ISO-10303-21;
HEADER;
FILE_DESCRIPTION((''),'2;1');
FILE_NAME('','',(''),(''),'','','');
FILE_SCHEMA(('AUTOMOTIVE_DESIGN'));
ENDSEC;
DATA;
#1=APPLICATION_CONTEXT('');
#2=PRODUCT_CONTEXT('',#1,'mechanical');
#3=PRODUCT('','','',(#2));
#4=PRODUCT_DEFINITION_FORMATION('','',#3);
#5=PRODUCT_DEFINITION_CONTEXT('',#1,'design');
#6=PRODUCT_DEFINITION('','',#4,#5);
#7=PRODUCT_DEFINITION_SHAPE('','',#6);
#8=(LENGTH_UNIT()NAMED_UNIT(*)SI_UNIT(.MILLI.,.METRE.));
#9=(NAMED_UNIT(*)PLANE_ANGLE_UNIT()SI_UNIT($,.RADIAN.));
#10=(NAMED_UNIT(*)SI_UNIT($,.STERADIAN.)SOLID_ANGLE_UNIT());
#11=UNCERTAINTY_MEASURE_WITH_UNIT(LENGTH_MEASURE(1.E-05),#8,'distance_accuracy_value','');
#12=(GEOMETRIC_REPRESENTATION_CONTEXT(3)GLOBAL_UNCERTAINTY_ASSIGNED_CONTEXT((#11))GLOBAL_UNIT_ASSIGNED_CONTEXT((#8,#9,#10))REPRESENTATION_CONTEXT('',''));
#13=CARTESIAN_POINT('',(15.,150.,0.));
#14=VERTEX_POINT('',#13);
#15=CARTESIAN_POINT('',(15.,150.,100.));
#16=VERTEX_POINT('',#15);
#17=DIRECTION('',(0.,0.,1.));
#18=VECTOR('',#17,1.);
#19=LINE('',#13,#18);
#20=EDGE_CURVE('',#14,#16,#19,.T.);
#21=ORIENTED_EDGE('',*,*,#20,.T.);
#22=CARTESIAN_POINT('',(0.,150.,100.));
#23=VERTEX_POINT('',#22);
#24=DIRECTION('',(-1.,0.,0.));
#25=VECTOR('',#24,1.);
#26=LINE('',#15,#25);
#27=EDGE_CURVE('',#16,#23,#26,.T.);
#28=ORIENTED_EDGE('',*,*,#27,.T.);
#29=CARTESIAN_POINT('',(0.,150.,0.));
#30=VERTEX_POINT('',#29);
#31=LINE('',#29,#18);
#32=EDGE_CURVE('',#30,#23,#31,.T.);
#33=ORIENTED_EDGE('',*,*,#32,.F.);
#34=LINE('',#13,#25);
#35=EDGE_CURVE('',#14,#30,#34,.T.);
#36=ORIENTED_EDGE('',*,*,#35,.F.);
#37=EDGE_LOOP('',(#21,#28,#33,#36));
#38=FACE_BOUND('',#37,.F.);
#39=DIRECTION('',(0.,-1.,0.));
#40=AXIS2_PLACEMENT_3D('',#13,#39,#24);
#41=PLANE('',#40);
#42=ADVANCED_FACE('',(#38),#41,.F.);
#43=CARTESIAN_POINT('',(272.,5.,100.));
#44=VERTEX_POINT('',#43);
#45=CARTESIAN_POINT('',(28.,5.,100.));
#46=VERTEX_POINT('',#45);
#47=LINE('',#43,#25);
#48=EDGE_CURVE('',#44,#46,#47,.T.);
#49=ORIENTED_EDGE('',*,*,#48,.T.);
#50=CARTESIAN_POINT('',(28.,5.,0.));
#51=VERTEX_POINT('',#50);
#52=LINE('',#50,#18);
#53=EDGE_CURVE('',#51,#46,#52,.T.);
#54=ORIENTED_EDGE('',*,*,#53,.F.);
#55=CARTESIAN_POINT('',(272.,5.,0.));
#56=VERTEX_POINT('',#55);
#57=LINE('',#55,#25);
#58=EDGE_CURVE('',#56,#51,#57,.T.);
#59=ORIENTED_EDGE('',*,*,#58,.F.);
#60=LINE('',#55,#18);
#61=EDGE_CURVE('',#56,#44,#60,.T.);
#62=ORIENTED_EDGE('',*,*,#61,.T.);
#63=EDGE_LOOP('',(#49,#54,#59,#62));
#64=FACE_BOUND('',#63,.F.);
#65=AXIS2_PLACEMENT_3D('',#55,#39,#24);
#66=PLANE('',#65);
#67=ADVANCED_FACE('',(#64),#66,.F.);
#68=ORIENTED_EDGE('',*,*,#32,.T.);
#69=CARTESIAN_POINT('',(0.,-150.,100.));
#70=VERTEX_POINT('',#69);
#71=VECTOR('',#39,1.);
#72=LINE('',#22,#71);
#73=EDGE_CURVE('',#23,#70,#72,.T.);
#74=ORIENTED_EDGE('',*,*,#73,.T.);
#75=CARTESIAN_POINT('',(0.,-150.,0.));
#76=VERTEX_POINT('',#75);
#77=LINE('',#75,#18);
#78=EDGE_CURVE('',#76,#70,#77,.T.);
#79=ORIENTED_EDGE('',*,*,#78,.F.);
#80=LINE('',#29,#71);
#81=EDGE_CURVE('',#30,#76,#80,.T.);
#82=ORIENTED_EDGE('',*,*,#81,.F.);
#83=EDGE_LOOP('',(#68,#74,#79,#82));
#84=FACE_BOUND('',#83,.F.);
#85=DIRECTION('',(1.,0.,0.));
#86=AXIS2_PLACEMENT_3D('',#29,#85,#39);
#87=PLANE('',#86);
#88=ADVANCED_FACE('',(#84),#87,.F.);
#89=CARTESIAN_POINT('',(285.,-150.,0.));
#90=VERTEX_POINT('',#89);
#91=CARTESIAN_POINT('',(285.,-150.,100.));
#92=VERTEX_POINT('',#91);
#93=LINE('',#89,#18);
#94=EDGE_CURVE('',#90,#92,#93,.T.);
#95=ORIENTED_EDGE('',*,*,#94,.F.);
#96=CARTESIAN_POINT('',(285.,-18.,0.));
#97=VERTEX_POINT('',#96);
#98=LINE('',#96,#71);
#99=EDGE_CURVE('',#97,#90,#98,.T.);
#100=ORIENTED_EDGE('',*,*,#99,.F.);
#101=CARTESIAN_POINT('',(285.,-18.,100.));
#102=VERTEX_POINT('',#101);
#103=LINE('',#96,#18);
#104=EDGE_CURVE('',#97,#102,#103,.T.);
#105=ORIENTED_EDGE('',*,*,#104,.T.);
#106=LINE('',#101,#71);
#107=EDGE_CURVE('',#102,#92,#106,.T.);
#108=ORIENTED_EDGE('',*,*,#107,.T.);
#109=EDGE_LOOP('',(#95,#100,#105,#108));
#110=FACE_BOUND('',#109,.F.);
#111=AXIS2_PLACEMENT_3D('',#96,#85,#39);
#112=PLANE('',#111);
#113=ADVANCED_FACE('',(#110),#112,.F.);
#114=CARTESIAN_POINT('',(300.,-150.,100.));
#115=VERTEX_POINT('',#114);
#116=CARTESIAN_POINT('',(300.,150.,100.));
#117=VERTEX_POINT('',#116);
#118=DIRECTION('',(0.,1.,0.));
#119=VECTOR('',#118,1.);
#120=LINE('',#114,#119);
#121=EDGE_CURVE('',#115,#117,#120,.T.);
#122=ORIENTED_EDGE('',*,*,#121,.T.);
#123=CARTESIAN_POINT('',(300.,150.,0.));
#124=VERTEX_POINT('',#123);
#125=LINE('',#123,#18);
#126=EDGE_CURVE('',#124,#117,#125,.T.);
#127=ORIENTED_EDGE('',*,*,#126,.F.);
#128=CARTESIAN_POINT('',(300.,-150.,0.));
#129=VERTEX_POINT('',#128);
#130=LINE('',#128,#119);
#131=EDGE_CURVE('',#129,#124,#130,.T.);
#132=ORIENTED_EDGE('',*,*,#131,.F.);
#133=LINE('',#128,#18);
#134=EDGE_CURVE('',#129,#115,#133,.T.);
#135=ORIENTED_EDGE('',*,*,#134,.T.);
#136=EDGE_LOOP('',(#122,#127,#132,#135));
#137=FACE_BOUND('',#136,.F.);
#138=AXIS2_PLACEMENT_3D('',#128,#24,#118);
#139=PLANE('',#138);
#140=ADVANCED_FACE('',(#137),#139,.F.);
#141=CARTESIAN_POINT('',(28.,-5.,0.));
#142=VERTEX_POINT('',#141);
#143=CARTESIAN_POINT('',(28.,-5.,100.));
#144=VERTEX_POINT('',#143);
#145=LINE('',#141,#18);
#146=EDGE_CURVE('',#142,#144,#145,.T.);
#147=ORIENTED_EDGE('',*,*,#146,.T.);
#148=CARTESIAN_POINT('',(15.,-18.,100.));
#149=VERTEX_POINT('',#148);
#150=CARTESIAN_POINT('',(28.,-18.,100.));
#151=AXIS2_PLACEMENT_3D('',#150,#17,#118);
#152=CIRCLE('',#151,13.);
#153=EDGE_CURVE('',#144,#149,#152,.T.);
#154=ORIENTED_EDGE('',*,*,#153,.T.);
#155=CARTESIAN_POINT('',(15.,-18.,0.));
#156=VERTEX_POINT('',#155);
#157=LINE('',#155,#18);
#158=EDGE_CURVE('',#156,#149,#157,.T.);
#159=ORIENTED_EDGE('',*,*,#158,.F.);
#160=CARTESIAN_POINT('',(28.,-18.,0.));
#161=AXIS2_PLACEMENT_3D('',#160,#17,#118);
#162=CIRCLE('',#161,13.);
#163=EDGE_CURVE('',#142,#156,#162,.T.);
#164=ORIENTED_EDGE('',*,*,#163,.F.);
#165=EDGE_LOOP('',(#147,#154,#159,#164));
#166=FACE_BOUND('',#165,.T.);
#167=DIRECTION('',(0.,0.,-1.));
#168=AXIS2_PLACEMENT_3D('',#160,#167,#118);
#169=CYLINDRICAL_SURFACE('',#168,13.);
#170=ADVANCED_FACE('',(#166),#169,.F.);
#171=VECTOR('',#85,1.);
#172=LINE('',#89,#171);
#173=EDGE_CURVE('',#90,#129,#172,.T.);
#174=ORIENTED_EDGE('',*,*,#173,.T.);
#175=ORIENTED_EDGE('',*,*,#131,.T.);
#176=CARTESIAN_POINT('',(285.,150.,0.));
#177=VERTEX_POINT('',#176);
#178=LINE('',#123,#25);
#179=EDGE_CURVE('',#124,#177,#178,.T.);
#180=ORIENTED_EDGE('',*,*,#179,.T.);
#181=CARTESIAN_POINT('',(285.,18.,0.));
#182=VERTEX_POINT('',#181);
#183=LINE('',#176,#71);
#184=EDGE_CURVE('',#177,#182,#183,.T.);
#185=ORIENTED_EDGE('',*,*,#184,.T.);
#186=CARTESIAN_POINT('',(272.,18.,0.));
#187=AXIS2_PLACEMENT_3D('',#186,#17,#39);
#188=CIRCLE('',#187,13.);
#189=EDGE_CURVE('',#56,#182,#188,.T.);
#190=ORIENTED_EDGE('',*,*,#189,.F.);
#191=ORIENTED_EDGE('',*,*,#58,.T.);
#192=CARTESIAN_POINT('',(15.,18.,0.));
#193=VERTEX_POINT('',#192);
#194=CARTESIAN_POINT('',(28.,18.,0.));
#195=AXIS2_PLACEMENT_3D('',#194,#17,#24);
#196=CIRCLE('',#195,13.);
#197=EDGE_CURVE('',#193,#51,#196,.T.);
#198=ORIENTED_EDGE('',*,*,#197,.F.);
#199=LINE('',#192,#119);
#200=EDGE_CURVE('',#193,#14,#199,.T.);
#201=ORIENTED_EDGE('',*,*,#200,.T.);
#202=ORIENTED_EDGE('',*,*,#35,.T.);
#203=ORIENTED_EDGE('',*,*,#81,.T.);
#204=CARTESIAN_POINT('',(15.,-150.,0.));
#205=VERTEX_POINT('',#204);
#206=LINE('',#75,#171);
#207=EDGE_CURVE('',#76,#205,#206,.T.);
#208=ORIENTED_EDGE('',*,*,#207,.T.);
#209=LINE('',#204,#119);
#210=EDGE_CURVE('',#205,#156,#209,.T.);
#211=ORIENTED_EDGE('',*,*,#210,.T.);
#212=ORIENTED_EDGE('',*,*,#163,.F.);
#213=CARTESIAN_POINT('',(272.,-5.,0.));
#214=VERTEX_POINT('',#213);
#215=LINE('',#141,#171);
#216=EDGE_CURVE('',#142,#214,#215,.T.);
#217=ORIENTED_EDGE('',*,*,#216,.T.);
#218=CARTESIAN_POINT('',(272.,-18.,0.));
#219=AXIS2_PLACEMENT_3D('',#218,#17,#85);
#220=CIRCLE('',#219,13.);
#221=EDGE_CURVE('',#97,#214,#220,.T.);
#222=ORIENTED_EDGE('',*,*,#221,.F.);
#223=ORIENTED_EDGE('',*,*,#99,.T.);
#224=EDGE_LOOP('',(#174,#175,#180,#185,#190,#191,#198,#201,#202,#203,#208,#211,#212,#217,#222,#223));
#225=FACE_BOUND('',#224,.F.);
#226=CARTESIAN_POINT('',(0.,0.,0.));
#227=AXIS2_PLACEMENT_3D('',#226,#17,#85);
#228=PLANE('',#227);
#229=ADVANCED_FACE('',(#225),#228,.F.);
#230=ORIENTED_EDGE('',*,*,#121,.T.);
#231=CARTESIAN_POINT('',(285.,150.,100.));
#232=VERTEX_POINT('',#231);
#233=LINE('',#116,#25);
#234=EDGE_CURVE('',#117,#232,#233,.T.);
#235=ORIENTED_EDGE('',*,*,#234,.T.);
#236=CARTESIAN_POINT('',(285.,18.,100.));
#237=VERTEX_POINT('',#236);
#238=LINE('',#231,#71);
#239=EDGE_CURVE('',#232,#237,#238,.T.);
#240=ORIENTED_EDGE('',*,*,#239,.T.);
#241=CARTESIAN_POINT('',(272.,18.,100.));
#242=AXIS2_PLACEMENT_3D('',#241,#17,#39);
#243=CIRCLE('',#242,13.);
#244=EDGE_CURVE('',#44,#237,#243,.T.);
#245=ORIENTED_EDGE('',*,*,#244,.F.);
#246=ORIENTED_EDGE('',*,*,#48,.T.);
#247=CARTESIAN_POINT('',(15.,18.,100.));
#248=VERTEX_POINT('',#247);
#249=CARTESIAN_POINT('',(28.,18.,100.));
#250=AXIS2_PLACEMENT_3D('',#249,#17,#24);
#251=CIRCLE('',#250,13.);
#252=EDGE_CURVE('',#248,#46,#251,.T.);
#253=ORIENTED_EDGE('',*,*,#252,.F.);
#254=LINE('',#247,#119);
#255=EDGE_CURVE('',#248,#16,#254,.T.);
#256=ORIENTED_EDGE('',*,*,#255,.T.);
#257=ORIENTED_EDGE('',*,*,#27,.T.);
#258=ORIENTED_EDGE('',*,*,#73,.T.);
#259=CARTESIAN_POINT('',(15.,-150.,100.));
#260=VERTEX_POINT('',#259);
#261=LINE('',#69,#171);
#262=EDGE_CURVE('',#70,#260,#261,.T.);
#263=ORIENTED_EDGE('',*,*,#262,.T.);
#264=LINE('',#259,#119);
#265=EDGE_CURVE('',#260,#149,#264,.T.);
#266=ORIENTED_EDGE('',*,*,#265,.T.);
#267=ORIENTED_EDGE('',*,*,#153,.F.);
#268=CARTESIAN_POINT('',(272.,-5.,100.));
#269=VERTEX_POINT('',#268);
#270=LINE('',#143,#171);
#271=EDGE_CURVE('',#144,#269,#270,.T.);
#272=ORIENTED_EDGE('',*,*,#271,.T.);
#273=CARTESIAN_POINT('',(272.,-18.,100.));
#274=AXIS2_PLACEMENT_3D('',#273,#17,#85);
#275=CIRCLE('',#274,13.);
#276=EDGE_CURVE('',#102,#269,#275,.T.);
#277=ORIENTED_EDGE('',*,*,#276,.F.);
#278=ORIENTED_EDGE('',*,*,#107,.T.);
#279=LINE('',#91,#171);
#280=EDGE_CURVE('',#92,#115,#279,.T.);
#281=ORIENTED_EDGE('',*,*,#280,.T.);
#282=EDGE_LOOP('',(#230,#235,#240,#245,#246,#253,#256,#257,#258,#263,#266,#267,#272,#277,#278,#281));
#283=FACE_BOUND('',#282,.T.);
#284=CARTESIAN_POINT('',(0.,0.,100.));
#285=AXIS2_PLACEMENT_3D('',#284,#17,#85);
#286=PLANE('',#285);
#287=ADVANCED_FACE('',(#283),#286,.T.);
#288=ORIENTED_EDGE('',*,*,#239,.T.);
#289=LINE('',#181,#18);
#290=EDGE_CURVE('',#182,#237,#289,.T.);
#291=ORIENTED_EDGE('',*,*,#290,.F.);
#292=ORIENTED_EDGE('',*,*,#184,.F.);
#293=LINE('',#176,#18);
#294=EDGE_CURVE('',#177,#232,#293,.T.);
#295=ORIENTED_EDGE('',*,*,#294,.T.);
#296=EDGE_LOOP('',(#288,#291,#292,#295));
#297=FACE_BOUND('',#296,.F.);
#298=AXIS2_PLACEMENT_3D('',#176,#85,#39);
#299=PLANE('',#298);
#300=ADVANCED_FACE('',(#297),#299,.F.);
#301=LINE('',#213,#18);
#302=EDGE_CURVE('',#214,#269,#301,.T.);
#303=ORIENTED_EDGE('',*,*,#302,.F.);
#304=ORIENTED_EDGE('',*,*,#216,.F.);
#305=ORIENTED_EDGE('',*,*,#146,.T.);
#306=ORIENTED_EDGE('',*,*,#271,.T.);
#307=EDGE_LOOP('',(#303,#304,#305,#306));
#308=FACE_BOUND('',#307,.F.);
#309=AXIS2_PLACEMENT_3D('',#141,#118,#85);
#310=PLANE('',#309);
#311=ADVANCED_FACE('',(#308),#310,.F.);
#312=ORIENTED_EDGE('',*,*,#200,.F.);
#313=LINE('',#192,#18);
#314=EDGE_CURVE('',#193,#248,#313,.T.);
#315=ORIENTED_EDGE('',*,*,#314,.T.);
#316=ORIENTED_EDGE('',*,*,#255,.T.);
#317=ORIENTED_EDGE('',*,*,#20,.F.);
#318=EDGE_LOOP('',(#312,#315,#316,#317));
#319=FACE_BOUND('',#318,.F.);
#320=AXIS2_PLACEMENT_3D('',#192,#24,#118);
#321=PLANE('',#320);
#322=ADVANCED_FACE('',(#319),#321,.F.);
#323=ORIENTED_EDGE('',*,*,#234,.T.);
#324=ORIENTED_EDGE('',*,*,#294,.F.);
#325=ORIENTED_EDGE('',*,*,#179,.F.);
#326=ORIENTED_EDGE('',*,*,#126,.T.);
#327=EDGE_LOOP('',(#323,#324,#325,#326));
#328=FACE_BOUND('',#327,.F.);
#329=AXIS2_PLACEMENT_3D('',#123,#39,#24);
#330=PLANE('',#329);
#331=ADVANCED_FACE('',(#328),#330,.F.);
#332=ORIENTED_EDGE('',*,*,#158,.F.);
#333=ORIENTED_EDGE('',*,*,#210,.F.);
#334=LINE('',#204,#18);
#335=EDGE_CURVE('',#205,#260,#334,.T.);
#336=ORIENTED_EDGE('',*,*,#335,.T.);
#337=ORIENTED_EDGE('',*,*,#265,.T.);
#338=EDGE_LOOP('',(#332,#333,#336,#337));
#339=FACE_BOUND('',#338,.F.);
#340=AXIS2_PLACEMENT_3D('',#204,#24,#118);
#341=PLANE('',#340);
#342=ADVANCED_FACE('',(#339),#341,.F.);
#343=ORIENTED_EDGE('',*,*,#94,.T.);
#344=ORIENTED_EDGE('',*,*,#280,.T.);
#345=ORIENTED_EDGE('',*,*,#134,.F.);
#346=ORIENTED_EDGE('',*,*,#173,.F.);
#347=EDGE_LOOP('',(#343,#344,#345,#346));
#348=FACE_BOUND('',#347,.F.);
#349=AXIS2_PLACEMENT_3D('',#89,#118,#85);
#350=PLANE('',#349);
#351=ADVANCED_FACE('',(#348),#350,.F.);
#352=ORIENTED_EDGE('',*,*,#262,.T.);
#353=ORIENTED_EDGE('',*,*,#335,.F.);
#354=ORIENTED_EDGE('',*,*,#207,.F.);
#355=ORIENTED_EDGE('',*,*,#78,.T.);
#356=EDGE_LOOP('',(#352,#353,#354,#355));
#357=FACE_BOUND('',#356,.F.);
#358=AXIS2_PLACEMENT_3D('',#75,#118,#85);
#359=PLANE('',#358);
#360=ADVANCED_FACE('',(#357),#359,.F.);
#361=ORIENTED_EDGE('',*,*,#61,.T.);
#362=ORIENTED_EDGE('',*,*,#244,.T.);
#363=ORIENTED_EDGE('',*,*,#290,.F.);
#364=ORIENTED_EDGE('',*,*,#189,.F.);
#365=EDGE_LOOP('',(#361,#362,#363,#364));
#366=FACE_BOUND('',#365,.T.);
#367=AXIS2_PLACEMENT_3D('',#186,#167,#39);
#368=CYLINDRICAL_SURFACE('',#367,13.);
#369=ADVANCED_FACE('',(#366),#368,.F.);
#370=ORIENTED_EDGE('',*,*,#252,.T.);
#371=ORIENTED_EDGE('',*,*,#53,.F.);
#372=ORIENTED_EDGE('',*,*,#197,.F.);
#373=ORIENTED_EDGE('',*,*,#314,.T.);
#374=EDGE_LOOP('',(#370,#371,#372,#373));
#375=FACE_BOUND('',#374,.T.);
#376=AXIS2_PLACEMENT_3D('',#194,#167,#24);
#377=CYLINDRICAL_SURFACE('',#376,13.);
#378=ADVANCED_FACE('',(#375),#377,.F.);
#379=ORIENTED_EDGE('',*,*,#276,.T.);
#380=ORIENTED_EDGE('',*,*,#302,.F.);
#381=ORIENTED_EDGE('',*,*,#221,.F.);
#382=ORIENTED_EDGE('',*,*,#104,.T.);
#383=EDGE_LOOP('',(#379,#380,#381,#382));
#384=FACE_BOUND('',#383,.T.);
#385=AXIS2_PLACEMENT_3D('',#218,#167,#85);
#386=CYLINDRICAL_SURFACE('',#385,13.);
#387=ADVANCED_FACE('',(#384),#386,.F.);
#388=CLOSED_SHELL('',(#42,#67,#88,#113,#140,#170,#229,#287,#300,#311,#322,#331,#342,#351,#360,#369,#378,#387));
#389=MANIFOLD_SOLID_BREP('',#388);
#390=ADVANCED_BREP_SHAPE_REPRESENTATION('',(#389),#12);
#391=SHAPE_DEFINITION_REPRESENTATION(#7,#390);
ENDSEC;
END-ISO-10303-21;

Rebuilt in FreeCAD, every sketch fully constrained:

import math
import FreeCAD as App
import Part
import Sketcher

doc = App.newDocument("Part")
body = doc.addObject("PartDesign::Body", "Body")

sketch1 = doc.addObject("Sketcher::SketchObject", "Sketch")
body.addObject(sketch1)
sketch1.AttachmentSupport = (doc.XY_Plane, [""])
sketch1.MapMode = "FlatFace"
sketch1.addGeometry(Part.LineSegment(App.Vector(15, 150, 0), App.Vector(0, 150, 0)), False)
sketch1.addGeometry(Part.LineSegment(App.Vector(0, 150, 0), App.Vector(0, -150, 0)), False)
sketch1.addGeometry(Part.LineSegment(App.Vector(0, -150, 0), App.Vector(15, -150, 0)), False)
sketch1.addGeometry(Part.LineSegment(App.Vector(15, -150, 0), App.Vector(15, -18, 0)), False)
sketch1.addGeometry(Part.ArcOfCircle(Part.Circle(App.Vector(28, -18, 0), App.Vector(0, 0, 1), 13), math.radians(90), math.radians(180)), False)
sketch1.addGeometry(Part.LineSegment(App.Vector(28, -5, 0), App.Vector(272, -5, 0)), False)
sketch1.addGeometry(Part.ArcOfCircle(Part.Circle(App.Vector(272, -18, 0), App.Vector(0, 0, 1), 13), math.radians(0), math.radians(90)), False)
sketch1.addGeometry(Part.LineSegment(App.Vector(285, -18, 0), App.Vector(285, -150, 0)), False)
sketch1.addGeometry(Part.LineSegment(App.Vector(285, -150, 0), App.Vector(300, -150, 0)), False)
sketch1.addGeometry(Part.LineSegment(App.Vector(300, -150, 0), App.Vector(300, 150, 0)), False)
sketch1.addGeometry(Part.LineSegment(App.Vector(300, 150, 0), App.Vector(285, 150, 0)), False)
sketch1.addGeometry(Part.LineSegment(App.Vector(285, 150, 0), App.Vector(285, 18, 0)), False)
sketch1.addGeometry(Part.ArcOfCircle(Part.Circle(App.Vector(272, 18, 0), App.Vector(0, 0, 1), 13), math.radians(-90), math.radians(0)), False)
sketch1.addGeometry(Part.LineSegment(App.Vector(272, 5, 0), App.Vector(28, 5, 0)), False)
sketch1.addGeometry(Part.ArcOfCircle(Part.Circle(App.Vector(28, 18, 0), App.Vector(0, 0, 1), 13), math.radians(180), math.radians(270)), False)
sketch1.addGeometry(Part.LineSegment(App.Vector(15, 18, 0), App.Vector(15, 150, 0)), False)
sketch1.addConstraint(Sketcher.Constraint("Coincident", 0, 2, 1, 1))
sketch1.addConstraint(Sketcher.Constraint("Coincident", 1, 2, 2, 1))
sketch1.addConstraint(Sketcher.Constraint("Coincident", 2, 2, 3, 1))
sketch1.addConstraint(Sketcher.Constraint("Tangent", 3, 2, 4, 2))
sketch1.addConstraint(Sketcher.Constraint("Tangent", 4, 1, 5, 1))
sketch1.addConstraint(Sketcher.Constraint("Tangent", 5, 2, 6, 2))
sketch1.addConstraint(Sketcher.Constraint("Tangent", 6, 1, 7, 1))
sketch1.addConstraint(Sketcher.Constraint("Coincident", 7, 2, 8, 1))
sketch1.addConstraint(Sketcher.Constraint("Coincident", 8, 2, 9, 1))
sketch1.addConstraint(Sketcher.Constraint("Coincident", 9, 2, 10, 1))
sketch1.addConstraint(Sketcher.Constraint("Coincident", 10, 2, 11, 1))
sketch1.addConstraint(Sketcher.Constraint("Tangent", 11, 2, 12, 2))
sketch1.addConstraint(Sketcher.Constraint("Tangent", 12, 1, 13, 1))
sketch1.addConstraint(Sketcher.Constraint("Tangent", 13, 2, 14, 2))
sketch1.addConstraint(Sketcher.Constraint("Tangent", 14, 1, 15, 1))
sketch1.addConstraint(Sketcher.Constraint("Coincident", 15, 2, 0, 1))
sketch1.addConstraint(Sketcher.Constraint("Horizontal", 0))
sketch1.addConstraint(Sketcher.Constraint("Vertical", 1))
sketch1.addConstraint(Sketcher.Constraint("Horizontal", 2))
sketch1.addConstraint(Sketcher.Constraint("Vertical", 3))
sketch1.addConstraint(Sketcher.Constraint("Horizontal", 5))
sketch1.addConstraint(Sketcher.Constraint("Vertical", 7))
sketch1.addConstraint(Sketcher.Constraint("Horizontal", 8))
sketch1.addConstraint(Sketcher.Constraint("Vertical", 9))
sketch1.addConstraint(Sketcher.Constraint("Horizontal", 10))
sketch1.addConstraint(Sketcher.Constraint("Vertical", 11))
sketch1.addConstraint(Sketcher.Constraint("Horizontal", 13))
sketch1.addConstraint(Sketcher.Constraint("Vertical", 15))
sketch1.addConstraint(Sketcher.Constraint("Equal", 4, 6))
sketch1.addConstraint(Sketcher.Constraint("Equal", 6, 12))
sketch1.addConstraint(Sketcher.Constraint("Equal", 12, 14))
sketch1.addConstraint(Sketcher.Constraint("Symmetric", 0, 2, 1, 2, -1, 1))
sketch1.addConstraint(Sketcher.Constraint("Symmetric", 6, 3, 12, 3, -1))
sketch1.addConstraint(Sketcher.Constraint("Horizontal", 2, 2, 7, 2))
sketch1.addConstraint(Sketcher.Constraint("Horizontal", 0, 2, 9, 2))
sketch1.addConstraint(Sketcher.Constraint("Vertical", 4, 3, 14, 3))
sketch1.addConstraint(Sketcher.Constraint("Equal", 2, 8))
sketch1.addConstraint(Sketcher.Constraint("Radius", 4, 13.0))
sketch1.addConstraint(Sketcher.Constraint("DistanceX", 0, 2, 0, 1, 15.0))
sketch1.addConstraint(Sketcher.Constraint("DistanceX", 5, 1, 5, 2, 244.0))
sketch1.addConstraint(Sketcher.Constraint("DistanceY", 1, 2, 1, 1, 300.0))
sketch1.addConstraint(Sketcher.Constraint("DistanceY", 3, 1, 3, 2, 132.0))
pad1 = doc.addObject("PartDesign::Pad", "Pad")
body.addObject(pad1)
pad1.Profile = sketch1
pad1.Length = 100

doc.recompute()
